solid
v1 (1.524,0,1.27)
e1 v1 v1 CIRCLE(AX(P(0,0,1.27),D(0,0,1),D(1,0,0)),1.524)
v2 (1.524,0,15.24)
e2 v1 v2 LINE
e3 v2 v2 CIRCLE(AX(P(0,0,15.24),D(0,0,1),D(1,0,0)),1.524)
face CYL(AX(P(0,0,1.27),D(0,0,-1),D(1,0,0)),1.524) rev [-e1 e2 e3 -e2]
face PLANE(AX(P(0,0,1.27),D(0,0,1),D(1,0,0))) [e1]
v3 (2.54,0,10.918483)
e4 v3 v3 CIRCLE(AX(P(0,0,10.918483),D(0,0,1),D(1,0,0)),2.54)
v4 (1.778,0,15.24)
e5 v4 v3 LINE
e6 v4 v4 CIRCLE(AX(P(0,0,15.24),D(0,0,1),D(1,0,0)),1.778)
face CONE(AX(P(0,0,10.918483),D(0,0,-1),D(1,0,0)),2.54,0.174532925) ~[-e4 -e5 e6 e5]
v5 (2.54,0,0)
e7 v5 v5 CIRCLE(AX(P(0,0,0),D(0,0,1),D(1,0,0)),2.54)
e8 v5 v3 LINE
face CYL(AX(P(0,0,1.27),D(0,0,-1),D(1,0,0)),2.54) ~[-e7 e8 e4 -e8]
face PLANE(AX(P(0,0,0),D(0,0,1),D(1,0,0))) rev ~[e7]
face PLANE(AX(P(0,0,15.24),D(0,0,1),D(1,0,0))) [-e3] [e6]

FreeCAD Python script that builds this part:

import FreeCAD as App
import Part
import Sketcher
from FreeCAD import Vector
Q = App.Units.Quantity


def edges_at(feature, points):
    """Names of the edges that pass closest to the given points."""
    edges = feature.Shape.Edges
    near = lambda p: min(range(len(edges)), key=lambda i: edges[i].distToShape(Part.Vertex(*p))[0])
    return sorted({f"Edge{near(p) + 1}" for p in points})

doc = App.newDocument("Part")
params = doc.addObject("Spreadsheet::Sheet", "Params")
for row, (alias, value) in enumerate([
    ("sketch1_diameter", "0.2 in"),
    ("pad1_length", "0.05 in"),
    ("sketch2_diameter", "0.2 in"),
    ("sketch2_diameter2", "0.12 in"),
    ("pad2_length", "0.55 in"),
    ("chamfer_size", "0.03 in"),
    ("chamfer_size2", "4.321517 mm"),
], start=1):
    params.set(f"A{row}", alias)
    params.set(f"B{row}", "=" + value)
    params.setAlias(f"B{row}", alias)

body = doc.addObject("PartDesign::Body", "Body")

# Sketch on XY plane
sketch1 = body.newObject("Sketcher::SketchObject", "Sketch")
sketch1.AttachmentSupport = (doc.getObject("XY_Plane"), [""])
sketch1.MapMode = "FlatFace"
sketch1.addGeometry(Part.Circle(Vector(0, 0, 0), Vector(0, 0, 1), 2.5), False)
sketch1.addConstraint([
    Sketcher.Constraint("Coincident", 0, 3, -1, 1),
    Sketcher.Constraint("Diameter", 0, Q("0.2 in")),
])
sketch1.setExpression("Constraints[1]", "Params.sketch1_diameter")
pad1 = body.newObject("PartDesign::Pad", "Pad")
pad1.Profile = sketch1
pad1.setExpression("Length", "Params.pad1_length")

# Sketch on XY plane
sketch2 = body.newObject("Sketcher::SketchObject", "Sketch001")
sketch2.AttachmentSupport = (doc.getObject("XY_Plane"), [""])
sketch2.MapMode = "FlatFace"
sketch2.AttachmentOffset = App.Placement(Vector(0, 0, 0.05 * 25.4), App.Rotation())
sketch2.addGeometry([
    Part.Circle(Vector(0, 0, 0), Vector(0, 0, 1), 2.5),
    Part.Circle(Vector(0, 0, 0), Vector(0, 0, 1), 1.5),
], False)
sketch2.addConstraint([
    Sketcher.Constraint("Coincident", 0, 3, -1, 1),
    Sketcher.Constraint("Coincident", 1, 3, -1, 1),
    Sketcher.Constraint("Diameter", 0, Q("0.2 in")),
    Sketcher.Constraint("Diameter", 1, Q("0.12 in")),
])
sketch2.setExpression("Constraints[2]", "Params.sketch2_diameter")
sketch2.setExpression("Constraints[3]", "Params.sketch2_diameter2")
pad2 = body.newObject("PartDesign::Pad", "Pad001")
pad2.Profile = sketch2
pad2.setExpression("Length", "Params.pad2_length")
doc.recompute()

chamfer = body.newObject("PartDesign::Chamfer", "Chamfer")
chamfer.Base = (pad2, edges_at(pad2, [(-2.54, 0, 15.24)]))
chamfer.ChamferType = "Two distances"
chamfer.setExpression("Size", "Params.chamfer_size")
chamfer.setExpression("Size2", "Params.chamfer_size2")

doc.recompute()
